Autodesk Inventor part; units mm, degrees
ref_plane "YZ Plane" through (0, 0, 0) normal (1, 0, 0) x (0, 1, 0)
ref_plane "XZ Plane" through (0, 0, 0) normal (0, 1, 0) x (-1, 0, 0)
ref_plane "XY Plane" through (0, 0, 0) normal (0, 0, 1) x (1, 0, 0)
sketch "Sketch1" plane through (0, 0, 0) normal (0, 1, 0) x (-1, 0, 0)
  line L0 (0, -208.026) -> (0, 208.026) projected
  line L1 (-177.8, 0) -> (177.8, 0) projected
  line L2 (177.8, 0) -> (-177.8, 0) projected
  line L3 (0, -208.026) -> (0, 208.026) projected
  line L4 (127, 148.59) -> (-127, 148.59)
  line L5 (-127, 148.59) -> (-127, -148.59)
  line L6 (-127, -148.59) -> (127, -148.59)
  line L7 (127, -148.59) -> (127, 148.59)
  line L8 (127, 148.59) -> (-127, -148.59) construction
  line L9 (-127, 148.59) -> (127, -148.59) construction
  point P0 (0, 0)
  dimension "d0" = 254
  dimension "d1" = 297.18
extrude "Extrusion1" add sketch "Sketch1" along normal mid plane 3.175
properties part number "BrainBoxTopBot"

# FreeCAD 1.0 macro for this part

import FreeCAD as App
import Part
import Sketcher
from FreeCAD import Vector
Q = App.Units.Quantity


def add_polygon(sketch, points):
    """Adds a closed chain of lines whose ends are joined by coincident constraints."""
    first, n = sketch.GeometryCount, len(points)
    for a, b in zip(points, points[1:] + points[:1]):
        sketch.addGeometry(Part.LineSegment(App.Vector(*a, 0), App.Vector(*b, 0)), False)
    for i in range(n):
        sketch.addConstraint(Sketcher.Constraint("Coincident", first + i, 2, first + (i + 1) % n, 1))

doc = App.newDocument("Part")
body = doc.addObject("PartDesign::Body", "Body")

sketch1 = body.newObject("Sketcher::SketchObject", "Sketch")
sketch1.AttachmentSupport = (doc.getObject("XZ_Plane"), [""])
sketch1.MapMode = "FlatFace"
add_polygon(sketch1, [(127, -148.59), (-127, -148.59), (-127, 148.59), (127, 148.59)])
sketch1.addConstraint(Sketcher.Constraint("Horizontal", 0))
sketch1.addConstraint(Sketcher.Constraint("Vertical", 1))
sketch1.addConstraint(Sketcher.Constraint("Horizontal", 2))
sketch1.addConstraint(Sketcher.Constraint("Vertical", 3))
sketch1.addConstraint(Sketcher.Constraint("Symmetric", 0, 2, 2, 2, -1, 1))
sketch1.addConstraint(Sketcher.Constraint("DistanceX", 0, 2, 0, 1, Q("10 in")))
sketch1.addConstraint(Sketcher.Constraint("DistanceY", 1, 1, 1, 2, Q("11.7 in")))
pad1 = body.newObject("PartDesign::Pad", "Pad")
pad1.Profile = sketch1
pad1.Length = Q("0.125 in")
pad1.Midplane = True

doc.recompute()
